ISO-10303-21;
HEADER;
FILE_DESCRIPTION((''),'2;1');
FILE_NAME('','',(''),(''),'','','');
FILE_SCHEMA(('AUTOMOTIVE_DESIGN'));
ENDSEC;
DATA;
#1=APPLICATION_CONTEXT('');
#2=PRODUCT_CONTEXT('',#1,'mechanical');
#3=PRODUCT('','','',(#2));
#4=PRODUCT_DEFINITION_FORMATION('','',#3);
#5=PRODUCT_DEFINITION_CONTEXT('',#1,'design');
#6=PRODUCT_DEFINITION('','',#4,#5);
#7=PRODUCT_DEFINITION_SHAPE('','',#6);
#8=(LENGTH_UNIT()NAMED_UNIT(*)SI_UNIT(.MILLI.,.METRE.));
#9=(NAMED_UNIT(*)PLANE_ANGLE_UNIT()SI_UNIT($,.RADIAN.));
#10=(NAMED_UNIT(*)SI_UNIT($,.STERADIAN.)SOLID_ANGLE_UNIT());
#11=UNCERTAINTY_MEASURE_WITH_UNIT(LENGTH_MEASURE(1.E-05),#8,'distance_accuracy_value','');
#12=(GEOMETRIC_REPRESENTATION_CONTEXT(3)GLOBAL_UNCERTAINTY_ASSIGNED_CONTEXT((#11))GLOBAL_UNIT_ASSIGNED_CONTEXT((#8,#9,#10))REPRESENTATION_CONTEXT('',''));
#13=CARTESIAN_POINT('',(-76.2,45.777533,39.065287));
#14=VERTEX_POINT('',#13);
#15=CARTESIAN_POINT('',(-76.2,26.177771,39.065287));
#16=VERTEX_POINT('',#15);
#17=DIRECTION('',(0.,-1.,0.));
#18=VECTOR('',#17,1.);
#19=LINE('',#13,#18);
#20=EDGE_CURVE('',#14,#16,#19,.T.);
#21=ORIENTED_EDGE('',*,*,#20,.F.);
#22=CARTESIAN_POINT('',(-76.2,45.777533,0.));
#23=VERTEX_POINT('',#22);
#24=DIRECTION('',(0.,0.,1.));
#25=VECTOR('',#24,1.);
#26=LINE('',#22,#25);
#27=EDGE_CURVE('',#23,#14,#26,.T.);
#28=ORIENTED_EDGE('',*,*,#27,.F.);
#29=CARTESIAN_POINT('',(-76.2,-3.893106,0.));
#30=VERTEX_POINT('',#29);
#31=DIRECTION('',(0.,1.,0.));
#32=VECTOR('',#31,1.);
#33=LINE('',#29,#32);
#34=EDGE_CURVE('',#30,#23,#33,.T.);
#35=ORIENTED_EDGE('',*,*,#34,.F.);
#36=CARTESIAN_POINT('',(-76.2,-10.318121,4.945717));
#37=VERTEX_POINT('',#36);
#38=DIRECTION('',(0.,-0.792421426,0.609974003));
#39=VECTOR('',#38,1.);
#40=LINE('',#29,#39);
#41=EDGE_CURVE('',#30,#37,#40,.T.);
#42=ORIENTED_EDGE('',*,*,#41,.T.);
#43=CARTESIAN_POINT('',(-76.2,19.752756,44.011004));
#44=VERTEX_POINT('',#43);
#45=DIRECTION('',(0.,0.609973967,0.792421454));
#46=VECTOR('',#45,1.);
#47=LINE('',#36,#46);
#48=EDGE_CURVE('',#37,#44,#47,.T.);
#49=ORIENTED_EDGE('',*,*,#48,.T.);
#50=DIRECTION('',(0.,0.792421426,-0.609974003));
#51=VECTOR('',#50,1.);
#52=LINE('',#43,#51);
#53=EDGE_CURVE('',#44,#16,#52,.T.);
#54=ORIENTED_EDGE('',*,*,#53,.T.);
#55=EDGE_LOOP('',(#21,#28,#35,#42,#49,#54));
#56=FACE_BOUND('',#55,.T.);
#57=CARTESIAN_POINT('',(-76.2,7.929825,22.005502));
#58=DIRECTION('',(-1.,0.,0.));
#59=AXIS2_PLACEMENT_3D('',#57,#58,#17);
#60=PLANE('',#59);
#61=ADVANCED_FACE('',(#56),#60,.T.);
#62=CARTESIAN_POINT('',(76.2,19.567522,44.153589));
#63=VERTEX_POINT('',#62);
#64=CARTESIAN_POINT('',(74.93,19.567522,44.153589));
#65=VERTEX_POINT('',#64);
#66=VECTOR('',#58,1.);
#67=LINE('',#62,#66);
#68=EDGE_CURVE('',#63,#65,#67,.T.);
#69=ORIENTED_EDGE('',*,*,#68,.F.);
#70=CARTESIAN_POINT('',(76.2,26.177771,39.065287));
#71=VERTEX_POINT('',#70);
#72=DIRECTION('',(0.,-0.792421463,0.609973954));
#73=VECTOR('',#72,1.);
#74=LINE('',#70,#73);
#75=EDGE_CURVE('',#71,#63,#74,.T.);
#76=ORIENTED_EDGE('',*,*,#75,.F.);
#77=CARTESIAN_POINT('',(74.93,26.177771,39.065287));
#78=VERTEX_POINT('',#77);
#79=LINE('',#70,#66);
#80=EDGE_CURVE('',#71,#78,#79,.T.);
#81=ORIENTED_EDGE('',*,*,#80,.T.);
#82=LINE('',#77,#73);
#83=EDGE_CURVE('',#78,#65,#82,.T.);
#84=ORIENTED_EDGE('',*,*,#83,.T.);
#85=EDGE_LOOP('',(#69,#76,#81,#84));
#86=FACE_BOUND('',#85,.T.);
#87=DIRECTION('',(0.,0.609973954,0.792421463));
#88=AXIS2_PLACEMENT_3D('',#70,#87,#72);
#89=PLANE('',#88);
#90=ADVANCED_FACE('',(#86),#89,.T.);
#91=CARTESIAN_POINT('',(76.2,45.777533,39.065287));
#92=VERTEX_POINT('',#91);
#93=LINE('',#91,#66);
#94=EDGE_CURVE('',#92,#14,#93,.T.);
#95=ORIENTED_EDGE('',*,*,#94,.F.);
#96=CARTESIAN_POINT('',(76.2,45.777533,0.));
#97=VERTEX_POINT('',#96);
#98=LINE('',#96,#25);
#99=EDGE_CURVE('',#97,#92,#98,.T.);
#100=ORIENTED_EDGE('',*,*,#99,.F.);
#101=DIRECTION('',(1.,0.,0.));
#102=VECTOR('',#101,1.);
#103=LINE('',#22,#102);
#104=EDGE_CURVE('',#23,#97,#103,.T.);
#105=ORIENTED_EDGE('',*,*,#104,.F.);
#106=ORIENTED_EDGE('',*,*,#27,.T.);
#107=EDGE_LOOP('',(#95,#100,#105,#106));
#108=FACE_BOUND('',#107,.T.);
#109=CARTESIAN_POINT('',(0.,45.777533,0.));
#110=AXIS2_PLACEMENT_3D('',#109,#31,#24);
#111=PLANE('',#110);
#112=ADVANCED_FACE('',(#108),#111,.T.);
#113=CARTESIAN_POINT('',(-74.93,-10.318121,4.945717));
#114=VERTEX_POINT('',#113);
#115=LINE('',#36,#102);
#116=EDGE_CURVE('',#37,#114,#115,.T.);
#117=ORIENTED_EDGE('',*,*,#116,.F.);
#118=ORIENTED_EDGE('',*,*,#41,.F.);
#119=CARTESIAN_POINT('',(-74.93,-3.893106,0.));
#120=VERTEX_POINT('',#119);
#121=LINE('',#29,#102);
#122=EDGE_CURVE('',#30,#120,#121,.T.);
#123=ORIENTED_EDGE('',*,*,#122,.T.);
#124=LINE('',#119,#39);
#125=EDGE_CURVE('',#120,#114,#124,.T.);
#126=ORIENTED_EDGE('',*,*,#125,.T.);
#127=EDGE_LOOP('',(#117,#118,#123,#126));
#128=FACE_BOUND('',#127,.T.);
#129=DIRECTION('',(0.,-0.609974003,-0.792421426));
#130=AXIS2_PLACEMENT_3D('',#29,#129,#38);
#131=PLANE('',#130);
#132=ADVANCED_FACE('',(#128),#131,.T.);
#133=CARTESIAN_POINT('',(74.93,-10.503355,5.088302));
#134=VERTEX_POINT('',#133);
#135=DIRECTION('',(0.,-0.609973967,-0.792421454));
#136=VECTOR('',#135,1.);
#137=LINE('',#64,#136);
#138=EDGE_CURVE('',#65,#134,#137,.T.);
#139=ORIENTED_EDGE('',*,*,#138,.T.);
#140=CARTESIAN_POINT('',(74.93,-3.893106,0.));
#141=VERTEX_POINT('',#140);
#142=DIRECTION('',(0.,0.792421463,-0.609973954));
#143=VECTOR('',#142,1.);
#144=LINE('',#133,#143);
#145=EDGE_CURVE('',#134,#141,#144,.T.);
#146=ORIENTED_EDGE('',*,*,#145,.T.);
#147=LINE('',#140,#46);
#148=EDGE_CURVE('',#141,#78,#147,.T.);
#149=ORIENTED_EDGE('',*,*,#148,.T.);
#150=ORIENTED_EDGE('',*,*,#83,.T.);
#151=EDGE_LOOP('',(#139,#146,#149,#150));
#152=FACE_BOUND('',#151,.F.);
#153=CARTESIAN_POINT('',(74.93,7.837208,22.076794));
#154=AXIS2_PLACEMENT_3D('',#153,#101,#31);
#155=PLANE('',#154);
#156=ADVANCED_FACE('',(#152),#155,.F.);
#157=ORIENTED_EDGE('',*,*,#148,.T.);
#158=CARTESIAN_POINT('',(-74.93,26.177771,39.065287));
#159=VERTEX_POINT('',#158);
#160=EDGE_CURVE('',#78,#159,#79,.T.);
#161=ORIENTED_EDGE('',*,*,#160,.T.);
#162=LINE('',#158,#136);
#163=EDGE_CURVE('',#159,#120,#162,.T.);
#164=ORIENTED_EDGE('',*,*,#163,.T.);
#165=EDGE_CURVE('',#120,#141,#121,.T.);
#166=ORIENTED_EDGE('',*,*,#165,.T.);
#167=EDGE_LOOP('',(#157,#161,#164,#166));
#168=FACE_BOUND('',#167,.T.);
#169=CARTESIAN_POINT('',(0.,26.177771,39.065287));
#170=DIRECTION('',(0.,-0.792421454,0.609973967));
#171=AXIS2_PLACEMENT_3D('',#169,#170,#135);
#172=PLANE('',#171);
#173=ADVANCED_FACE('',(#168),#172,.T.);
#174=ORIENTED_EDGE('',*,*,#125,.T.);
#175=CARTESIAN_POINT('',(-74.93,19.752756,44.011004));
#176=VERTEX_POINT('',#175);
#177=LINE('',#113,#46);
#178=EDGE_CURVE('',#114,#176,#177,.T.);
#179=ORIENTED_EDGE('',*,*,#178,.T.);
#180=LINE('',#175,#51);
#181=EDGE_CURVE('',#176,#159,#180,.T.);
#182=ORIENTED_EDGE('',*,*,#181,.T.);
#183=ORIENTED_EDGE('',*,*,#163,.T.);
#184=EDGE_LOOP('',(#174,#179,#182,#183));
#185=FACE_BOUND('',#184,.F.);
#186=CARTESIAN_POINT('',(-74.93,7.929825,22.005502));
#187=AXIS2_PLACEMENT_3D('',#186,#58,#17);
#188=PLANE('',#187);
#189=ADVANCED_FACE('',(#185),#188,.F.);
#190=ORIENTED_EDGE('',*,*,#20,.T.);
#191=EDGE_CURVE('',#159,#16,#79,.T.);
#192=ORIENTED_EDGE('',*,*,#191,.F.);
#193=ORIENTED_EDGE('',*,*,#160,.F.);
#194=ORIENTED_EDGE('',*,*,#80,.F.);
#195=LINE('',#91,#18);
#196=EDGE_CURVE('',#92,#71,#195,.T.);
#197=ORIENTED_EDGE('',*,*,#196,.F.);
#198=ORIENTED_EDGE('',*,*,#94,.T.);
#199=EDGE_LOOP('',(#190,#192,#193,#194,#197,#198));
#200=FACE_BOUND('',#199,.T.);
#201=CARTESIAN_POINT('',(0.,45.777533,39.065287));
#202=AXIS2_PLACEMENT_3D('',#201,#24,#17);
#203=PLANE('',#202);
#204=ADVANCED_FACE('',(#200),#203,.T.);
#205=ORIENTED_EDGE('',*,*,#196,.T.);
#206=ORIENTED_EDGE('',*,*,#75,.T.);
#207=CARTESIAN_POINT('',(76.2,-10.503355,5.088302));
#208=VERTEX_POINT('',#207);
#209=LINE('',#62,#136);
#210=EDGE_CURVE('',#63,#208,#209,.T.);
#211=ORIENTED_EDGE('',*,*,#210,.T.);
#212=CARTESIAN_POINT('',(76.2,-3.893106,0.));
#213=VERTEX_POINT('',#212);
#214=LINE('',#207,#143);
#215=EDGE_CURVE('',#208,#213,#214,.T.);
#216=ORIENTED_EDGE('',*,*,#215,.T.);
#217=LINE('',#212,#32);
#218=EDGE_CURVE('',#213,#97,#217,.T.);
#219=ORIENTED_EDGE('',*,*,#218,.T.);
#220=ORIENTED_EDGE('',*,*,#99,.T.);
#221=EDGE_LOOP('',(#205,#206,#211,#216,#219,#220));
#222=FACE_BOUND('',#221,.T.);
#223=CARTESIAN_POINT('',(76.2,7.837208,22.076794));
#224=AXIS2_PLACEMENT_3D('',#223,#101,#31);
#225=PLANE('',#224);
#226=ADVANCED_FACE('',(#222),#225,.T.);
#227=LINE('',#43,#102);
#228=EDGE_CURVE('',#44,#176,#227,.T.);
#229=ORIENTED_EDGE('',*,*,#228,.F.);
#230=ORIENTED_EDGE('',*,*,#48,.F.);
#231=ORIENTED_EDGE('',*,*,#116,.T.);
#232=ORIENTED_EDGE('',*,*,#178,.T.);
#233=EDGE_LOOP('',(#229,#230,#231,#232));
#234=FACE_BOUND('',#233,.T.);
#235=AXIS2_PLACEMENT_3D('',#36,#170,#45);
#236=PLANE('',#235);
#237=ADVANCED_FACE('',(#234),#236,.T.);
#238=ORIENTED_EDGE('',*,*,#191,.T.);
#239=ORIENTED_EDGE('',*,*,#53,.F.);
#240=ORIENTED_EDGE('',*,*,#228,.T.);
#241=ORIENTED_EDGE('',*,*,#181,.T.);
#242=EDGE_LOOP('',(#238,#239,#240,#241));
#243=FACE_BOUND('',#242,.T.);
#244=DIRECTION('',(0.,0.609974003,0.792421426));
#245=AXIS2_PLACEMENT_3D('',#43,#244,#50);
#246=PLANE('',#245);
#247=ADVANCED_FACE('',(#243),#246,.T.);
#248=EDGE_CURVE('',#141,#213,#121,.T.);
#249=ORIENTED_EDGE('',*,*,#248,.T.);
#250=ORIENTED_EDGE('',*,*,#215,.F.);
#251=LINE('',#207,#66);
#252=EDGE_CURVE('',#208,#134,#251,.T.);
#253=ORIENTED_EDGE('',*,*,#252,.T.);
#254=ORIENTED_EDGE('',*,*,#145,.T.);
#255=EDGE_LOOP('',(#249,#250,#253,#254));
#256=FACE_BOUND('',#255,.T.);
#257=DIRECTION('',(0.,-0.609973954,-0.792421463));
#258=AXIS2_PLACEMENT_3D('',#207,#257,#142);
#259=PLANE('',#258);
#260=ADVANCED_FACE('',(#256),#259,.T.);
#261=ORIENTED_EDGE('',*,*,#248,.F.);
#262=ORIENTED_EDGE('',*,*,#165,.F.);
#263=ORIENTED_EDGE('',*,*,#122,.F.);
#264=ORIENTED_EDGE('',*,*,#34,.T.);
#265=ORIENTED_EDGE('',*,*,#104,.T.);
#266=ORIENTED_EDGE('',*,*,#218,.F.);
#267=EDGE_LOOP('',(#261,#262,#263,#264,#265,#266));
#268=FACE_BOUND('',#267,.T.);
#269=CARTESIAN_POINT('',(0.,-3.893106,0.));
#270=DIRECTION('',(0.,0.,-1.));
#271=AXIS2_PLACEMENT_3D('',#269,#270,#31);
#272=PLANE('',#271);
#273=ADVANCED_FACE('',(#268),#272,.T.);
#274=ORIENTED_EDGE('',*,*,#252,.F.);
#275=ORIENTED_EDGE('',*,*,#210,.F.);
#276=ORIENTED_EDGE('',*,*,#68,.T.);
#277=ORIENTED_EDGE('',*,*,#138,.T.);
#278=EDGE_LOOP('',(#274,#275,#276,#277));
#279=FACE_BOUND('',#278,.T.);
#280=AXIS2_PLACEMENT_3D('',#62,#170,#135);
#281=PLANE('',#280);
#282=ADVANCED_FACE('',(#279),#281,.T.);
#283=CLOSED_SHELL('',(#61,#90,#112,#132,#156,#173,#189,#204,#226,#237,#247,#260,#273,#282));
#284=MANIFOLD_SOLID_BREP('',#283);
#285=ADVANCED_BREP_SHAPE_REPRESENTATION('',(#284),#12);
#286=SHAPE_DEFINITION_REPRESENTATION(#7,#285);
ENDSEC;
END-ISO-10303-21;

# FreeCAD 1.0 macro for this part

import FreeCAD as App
import Part
import Sketcher

V = App.Vector

doc = App.newDocument("Part")
params = doc.addObject("Spreadsheet::Sheet", "Params")
for row, (alias, value) in enumerate([
    ("pad1_length", "6 in"),
    ("pad2_length", "0.05 in"),
    ("pad3_length", "0.05 in"),
], start=1):
    params.set(f"A{row}", alias)
    params.set(f"B{row}", "=" + value)
    params.setAlias(f"B{row}", alias)

body = doc.addObject("PartDesign::Body", "Body")

# Sketch on YZ plane
sketch1 = body.newObject("Sketcher::SketchObject", "Sketch")
sketch1.AttachmentSupport = (doc.getObject("YZ_Plane"), [""])
sketch1.MapMode = "FlatFace"
sketch1.addGeometry(Part.LineSegment(V(26.177771, 39.065287, 0), V(-3.893106, 0, 0)), False)
sketch1.addGeometry(Part.LineSegment(V(-3.893106, 0, 0), V(45.777533, 0, 0)), False)
sketch1.addGeometry(Part.LineSegment(V(45.777533, 0, 0), V(45.777533, 39.065287, 0)), False)
sketch1.addGeometry(Part.LineSegment(V(45.777533, 39.065287, 0), V(26.177771, 39.065287, 0)), False)
sketch1.addConstraint(Sketcher.Constraint("Coincident", 0, 2, 1, 1))
sketch1.addConstraint(Sketcher.Constraint("Coincident", 1, 2, 2, 1))
sketch1.addConstraint(Sketcher.Constraint("Coincident", 2, 2, 3, 1))
sketch1.addConstraint(Sketcher.Constraint("Coincident", 3, 2, 0, 1))
sketch1.addConstraint(Sketcher.Constraint("Horizontal", 1))
sketch1.addConstraint(Sketcher.Constraint("Vertical", 2))
sketch1.addConstraint(Sketcher.Constraint("Horizontal", 3))
sketch1.addConstraint(Sketcher.Constraint("PointOnObject", 0, 2, -1))
sketch1.addConstraint(Sketcher.Constraint("DistanceX", 1, 1, 1, 2, 49.670639))
sketch1.addConstraint(Sketcher.Constraint("DistanceX", 3, 2, 3, 1, 19.599762))
sketch1.addConstraint(Sketcher.Constraint("DistanceY", 2, 1, 2, 2, 39.065287))
sketch1.addConstraint(Sketcher.Constraint("DistanceX", -1, 1, 3, 2, 26.177771))
pad1 = body.newObject("PartDesign::Pad", "Pad")
pad1.Profile = sketch1
pad1.setExpression("Length", "Params.pad1_length")
pad1.Midplane = True

# Sketch on YZ plane
sketch2 = body.newObject("Sketcher::SketchObject", "Sketch001")
sketch2.AttachmentSupport = (doc.getObject("YZ_Plane"), [""])
sketch2.MapMode = "FlatFace"
sketch2.AttachmentOffset = App.Placement(V(0, 0, 3 * 25.4), App.Rotation())
sketch2.addGeometry(Part.LineSegment(V(-10.503355, 5.088302, 0), V(-3.893106, 0, 0)), False)
sketch2.addGeometry(Part.LineSegment(V(-3.893106, 0, 0), V(26.177771, 39.065287, 0)), False)
sketch2.addGeometry(Part.LineSegment(V(26.177771, 39.065287, 0), V(19.567522, 44.153589, 0)), False)
sketch2.addGeometry(Part.LineSegment(V(19.567522, 44.153589, 0), V(-10.503355, 5.088302, 0)), False)
sketch2.addConstraint(Sketcher.Constraint("Coincident", 0, 2, 1, 1))
sketch2.addConstraint(Sketcher.Constraint("Coincident", 1, 2, 2, 1))
sketch2.addConstraint(Sketcher.Constraint("Coincident", 2, 2, 3, 1))
sketch2.addConstraint(Sketcher.Constraint("Coincident", 3, 2, 0, 1))
sketch2.addConstraint(Sketcher.Constraint("PointOnObject", 0, 2, -1))
sketch2.addConstraint(Sketcher.Constraint("Perpendicular", 0, 1))
sketch2.addConstraint(Sketcher.Constraint("Perpendicular", 1, 2))
sketch2.addConstraint(Sketcher.Constraint("Perpendicular", 2, 3))
sketch2.addConstraint(Sketcher.Constraint("DistanceY", -1, 1, 3, 2, 5.088302))
sketch2.addConstraint(Sketcher.Constraint("DistanceX", -1, 1, 1, 2, 26.177771))
sketch2.addConstraint(Sketcher.Constraint("DistanceY", -1, 1, 2, 2, 44.153589))
sketch2.addConstraint(Sketcher.Constraint("DistanceX", 2, 2, 1, 2, 6.610249))
pad2 = body.newObject("PartDesign::Pad", "Pad001")
pad2.Profile = sketch2
pad2.setExpression("Length", "Params.pad2_length")
pad2.Reversed = True

# Sketch on YZ plane
sketch3 = body.newObject("Sketcher::SketchObject", "Sketch002")
sketch3.AttachmentSupport = (doc.getObject("YZ_Plane"), [""])
sketch3.MapMode = "FlatFace"
sketch3.AttachmentOffset = App.Placement(V(0, 0, -3 * 25.4), App.Rotation())
sketch3.addGeometry(Part.LineSegment(V(19.752756, 44.011004, 0), V(26.177771, 39.065287, 0)), False)
sketch3.addGeometry(Part.LineSegment(V(26.177771, 39.065287, 0), V(-3.893106, 0, 0)), False)
sketch3.addGeometry(Part.LineSegment(V(-3.893106, 0, 0), V(-10.318121, 4.945717, 0)), False)
sketch3.addGeometry(Part.LineSegment(V(-10.318121, 4.945717, 0), V(19.752756, 44.011004, 0)), False)
sketch3.addConstraint(Sketcher.Constraint("Coincident", 0, 2, 1, 1))
sketch3.addConstraint(Sketcher.Constraint("Coincident", 1, 2, 2, 1))
sketch3.addConstraint(Sketcher.Constraint("Coincident", 2, 2, 3, 1))
sketch3.addConstraint(Sketcher.Constraint("Coincident", 3, 2, 0, 1))
sketch3.addConstraint(Sketcher.Constraint("PointOnObject", 1, 2, -1))
sketch3.addConstraint(Sketcher.Constraint("Perpendicular", 0, 1))
sketch3.addConstraint(Sketcher.Constraint("Perpendicular", 1, 2))
sketch3.addConstraint(Sketcher.Constraint("Perpendicular", 2, 3))
sketch3.addConstraint(Sketcher.Constraint("Distance", 0, 8.108078))
sketch3.addConstraint(Sketcher.Constraint("DistanceX", -1, 1, 0, 2, 26.177771))
sketch3.addConstraint(Sketcher.Constraint("DistanceX", 2, 2, -1, 1, 10.318121))
sketch3.addConstraint(Sketcher.Constraint("DistanceY", 2, 2, 0, 2, 34.11957))
pad3 = body.newObject("PartDesign::Pad", "Pad002")
pad3.Profile = sketch3
pad3.setExpression("Length", "Params.pad3_length")

doc.recompute()
